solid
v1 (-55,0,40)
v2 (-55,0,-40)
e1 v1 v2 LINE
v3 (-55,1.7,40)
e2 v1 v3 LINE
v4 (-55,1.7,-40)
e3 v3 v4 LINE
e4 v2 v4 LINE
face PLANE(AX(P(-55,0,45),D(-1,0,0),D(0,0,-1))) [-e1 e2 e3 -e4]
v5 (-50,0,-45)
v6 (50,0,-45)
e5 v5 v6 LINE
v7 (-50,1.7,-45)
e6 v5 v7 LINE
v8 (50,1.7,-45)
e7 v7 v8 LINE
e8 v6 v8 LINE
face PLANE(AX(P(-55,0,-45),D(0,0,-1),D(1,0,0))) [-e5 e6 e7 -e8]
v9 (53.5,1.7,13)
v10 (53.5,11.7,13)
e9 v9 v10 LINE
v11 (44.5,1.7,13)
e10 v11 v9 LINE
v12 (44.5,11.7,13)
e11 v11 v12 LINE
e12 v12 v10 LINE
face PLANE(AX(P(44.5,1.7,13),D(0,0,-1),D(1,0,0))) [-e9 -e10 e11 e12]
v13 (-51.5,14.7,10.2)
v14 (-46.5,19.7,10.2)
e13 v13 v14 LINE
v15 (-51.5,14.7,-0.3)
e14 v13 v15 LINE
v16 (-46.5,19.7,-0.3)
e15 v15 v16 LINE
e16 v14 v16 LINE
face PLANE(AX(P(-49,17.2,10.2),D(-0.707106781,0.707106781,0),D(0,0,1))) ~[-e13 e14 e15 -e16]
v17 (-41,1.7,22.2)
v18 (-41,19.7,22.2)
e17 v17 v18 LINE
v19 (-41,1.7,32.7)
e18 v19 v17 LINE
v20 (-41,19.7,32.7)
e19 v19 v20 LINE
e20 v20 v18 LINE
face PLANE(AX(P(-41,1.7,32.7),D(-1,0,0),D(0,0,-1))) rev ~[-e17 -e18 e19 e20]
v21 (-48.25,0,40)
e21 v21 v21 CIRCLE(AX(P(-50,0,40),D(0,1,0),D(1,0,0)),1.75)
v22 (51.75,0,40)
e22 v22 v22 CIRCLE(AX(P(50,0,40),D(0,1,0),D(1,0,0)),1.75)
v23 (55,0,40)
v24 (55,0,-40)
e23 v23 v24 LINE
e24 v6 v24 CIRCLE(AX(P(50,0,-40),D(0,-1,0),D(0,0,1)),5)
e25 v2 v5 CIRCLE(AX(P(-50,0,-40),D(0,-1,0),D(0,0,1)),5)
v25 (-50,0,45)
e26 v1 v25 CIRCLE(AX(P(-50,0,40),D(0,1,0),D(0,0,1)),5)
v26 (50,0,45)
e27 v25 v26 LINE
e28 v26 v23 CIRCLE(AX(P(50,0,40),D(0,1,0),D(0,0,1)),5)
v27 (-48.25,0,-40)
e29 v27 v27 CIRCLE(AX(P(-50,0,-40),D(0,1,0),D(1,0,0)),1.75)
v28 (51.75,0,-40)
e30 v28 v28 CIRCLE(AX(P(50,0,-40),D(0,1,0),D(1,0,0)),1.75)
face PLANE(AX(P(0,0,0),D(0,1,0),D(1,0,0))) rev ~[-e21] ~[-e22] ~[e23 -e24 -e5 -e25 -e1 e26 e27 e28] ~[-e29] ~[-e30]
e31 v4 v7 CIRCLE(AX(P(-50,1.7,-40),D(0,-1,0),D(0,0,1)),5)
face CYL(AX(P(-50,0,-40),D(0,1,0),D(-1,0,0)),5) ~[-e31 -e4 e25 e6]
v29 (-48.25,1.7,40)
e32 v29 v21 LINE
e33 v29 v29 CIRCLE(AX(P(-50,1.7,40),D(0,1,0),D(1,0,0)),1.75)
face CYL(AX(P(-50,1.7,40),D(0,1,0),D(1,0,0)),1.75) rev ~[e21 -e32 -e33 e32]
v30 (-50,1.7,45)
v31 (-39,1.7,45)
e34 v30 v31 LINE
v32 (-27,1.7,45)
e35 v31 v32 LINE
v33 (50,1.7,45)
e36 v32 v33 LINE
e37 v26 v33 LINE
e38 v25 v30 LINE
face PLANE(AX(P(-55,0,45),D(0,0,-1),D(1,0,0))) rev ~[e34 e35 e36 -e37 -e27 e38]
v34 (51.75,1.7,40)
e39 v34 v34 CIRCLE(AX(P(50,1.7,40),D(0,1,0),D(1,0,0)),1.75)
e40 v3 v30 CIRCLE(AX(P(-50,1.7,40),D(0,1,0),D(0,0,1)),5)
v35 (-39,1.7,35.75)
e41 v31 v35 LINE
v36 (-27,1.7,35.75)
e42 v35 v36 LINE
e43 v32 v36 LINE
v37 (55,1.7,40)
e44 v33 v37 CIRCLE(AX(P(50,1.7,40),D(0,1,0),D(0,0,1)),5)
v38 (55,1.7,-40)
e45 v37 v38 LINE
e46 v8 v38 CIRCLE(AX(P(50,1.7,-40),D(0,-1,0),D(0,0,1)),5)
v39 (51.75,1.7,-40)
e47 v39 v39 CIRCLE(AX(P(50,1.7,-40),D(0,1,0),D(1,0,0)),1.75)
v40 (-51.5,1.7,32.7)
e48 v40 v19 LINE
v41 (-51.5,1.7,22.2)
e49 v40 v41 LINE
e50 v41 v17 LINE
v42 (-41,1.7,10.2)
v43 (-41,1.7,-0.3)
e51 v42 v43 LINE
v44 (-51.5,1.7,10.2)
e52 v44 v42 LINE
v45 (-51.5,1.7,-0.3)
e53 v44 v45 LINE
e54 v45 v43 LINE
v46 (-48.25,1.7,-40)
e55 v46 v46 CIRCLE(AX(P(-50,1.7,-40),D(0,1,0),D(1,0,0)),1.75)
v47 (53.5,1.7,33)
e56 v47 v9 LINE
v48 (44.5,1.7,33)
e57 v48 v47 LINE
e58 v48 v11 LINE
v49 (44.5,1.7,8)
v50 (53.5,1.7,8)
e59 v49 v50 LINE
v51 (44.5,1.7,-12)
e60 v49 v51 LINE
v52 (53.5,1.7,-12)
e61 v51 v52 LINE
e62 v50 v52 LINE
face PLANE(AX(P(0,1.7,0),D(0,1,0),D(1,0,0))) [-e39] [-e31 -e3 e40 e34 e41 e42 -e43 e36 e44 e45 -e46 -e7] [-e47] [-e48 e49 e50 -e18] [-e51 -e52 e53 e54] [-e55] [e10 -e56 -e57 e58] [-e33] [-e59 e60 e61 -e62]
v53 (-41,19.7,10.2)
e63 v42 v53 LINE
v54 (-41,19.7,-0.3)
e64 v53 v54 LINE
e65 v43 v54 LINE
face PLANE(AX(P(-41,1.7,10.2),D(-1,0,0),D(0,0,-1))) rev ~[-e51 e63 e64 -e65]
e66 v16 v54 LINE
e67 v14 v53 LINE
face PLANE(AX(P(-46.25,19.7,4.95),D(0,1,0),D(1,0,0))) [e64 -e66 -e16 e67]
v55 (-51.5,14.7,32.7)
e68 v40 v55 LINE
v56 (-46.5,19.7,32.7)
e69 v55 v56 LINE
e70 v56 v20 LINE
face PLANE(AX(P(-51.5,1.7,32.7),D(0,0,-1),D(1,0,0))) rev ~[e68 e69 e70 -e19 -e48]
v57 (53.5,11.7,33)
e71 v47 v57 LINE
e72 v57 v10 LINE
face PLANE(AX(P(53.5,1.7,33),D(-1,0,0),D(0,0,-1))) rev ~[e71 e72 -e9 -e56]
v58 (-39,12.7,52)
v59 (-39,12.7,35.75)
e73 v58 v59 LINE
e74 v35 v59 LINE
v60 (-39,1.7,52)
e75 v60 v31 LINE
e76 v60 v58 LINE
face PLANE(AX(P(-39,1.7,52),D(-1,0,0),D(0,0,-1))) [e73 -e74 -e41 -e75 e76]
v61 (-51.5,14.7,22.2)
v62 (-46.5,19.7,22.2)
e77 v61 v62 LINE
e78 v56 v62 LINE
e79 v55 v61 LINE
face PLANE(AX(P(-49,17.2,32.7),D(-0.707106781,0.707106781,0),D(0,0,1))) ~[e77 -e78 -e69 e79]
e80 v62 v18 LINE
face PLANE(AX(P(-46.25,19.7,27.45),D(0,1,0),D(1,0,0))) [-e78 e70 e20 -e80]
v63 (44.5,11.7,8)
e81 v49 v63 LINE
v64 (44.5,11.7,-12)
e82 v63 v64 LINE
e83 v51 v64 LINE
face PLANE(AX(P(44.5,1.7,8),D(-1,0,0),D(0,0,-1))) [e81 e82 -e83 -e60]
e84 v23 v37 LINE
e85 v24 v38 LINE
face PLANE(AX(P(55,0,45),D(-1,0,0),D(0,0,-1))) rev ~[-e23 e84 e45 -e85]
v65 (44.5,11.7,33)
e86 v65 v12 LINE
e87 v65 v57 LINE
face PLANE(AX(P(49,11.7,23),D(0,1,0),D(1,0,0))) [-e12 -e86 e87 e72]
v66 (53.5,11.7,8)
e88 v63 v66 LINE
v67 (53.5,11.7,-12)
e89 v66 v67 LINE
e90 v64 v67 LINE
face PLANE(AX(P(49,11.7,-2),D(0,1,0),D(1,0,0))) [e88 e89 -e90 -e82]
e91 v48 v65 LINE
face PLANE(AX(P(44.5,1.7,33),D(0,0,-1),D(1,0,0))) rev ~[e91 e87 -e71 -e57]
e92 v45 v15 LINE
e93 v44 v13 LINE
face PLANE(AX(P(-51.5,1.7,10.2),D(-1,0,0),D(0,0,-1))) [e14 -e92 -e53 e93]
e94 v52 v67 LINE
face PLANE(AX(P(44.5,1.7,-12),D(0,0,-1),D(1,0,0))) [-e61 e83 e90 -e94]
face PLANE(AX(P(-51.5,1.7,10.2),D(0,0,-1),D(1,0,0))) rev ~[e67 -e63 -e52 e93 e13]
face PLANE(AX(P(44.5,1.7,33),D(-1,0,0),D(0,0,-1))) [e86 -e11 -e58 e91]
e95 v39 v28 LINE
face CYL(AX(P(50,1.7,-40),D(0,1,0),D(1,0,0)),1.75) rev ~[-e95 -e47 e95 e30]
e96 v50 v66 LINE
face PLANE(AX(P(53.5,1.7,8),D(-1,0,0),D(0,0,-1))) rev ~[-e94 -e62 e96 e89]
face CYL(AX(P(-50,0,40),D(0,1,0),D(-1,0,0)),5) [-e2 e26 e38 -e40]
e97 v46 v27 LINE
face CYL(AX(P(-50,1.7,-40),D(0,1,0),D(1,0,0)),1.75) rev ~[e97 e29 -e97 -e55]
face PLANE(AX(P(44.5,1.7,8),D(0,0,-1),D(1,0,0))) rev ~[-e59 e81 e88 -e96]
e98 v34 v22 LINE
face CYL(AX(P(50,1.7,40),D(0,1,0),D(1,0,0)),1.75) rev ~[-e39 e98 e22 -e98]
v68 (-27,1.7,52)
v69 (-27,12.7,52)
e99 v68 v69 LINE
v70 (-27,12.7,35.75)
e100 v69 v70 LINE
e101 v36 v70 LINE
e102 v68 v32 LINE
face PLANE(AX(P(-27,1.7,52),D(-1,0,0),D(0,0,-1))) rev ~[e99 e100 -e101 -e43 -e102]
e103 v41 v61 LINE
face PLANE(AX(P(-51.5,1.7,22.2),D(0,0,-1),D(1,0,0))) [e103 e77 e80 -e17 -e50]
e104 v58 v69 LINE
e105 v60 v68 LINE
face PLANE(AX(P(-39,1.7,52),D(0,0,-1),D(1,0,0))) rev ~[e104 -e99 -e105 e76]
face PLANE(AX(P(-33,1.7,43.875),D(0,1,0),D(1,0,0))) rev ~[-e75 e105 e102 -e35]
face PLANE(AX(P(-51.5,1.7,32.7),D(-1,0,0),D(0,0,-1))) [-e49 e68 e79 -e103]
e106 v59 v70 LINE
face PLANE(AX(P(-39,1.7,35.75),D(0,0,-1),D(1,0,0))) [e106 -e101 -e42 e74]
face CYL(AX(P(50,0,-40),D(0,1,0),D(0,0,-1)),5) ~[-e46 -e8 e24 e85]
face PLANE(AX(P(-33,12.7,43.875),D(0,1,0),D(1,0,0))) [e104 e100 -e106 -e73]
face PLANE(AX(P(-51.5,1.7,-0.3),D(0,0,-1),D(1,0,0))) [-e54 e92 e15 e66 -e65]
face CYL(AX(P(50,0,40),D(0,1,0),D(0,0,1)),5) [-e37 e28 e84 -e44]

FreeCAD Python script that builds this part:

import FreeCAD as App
import Part
import Sketcher
from FreeCAD import Vector


def edges_at(feature, points):
    """Names of the edges that pass closest to the given points."""
    edges = feature.Shape.Edges
    near = lambda p: min(range(len(edges)), key=lambda i: edges[i].distToShape(Part.Vertex(*p))[0])
    return sorted({f"Edge{near(p) + 1}" for p in points})


def add_polygon(sketch, points):
    """Adds a closed chain of lines whose ends are joined by coincident constraints."""
    first, n = sketch.GeometryCount, len(points)
    for a, b in zip(points, points[1:] + points[:1]):
        sketch.addGeometry(Part.LineSegment(App.Vector(*a, 0), App.Vector(*b, 0)), False)
    for i in range(n):
        sketch.addConstraint(Sketcher.Constraint("Coincident", first + i, 2, first + (i + 1) % n, 1))

doc = App.newDocument("Part")
params = doc.addObject("Spreadsheet::Sheet", "Params")
for row, (alias, value) in enumerate([
    ("sketch1_width", "110 mm"),
    ("sketch1_height", "90 mm"),
    ("pad1_length", "1.7 mm"),
    ("sketch2_diameter", "3.5 mm"),
    ("sketch3_diameter", "3.5 mm"),
    ("sketch4_diameter", "3.5 mm"),
    ("sketch5_diameter", "3.5 mm"),
    ("sketch6_diameter", "3.5 mm"),
    ("pocket5_length", "1 mm"),
    ("fillet_radius", "5 mm"),
    ("sketch7_width", "10.5 mm"),
    ("pad2_length", "18 mm"),
    ("chamfer_size", "5 mm"),
    ("sketch8_width", "12 mm"),
    ("sketch8_height", "16.25 mm"),
    ("pad3_length", "11 mm"),
    ("sketch9_width", "9 mm"),
    ("sketch9_height", "20 mm"),
    ("pad4_length", "10 mm"),
], start=1):
    params.set(f"A{row}", alias)
    params.set(f"B{row}", "=" + value)
    params.setAlias(f"B{row}", alias)

body = doc.addObject("PartDesign::Body", "Body")

sketch1 = body.newObject("Sketcher::SketchObject", "Sketch")
sketch1.AttachmentSupport = (doc.getObject("XZ_Plane"), [""])
sketch1.MapMode = "FlatFace"
add_polygon(sketch1, [(-55, -45), (-55, 45), (55, 45), (55, -45)])
sketch1.addConstraint([
    Sketcher.Constraint("Vertical", 0),
    Sketcher.Constraint("Horizontal", 1),
    Sketcher.Constraint("Vertical", 2),
    Sketcher.Constraint("Horizontal", 3),
    Sketcher.Constraint("Symmetric", 0, 2, 2, 2, -1, 1),
    Sketcher.Constraint("DistanceX", 1, 1, 1, 2, 110.0),
    Sketcher.Constraint("DistanceY", 0, 1, 0, 2, 90.0),
])
sketch1.setExpression("Constraints[9]", "Params.sketch1_width")
sketch1.setExpression("Constraints[10]", "Params.sketch1_height")
pad1 = body.newObject("PartDesign::Pad", "Pad")
pad1.Profile = sketch1
pad1.setExpression("Length", "Params.pad1_length")
pad1.Reversed = True

sketch2 = body.newObject("Sketcher::SketchObject", "Sketch001")
sketch2.AttachmentSupport = (doc.getObject("XZ_Plane"), [""])
sketch2.MapMode = "FlatFace"
sketch2.AttachmentOffset = App.Placement(Vector(0, 0, -1.7), App.Rotation())
sketch2.addGeometry(Part.Circle(Vector(-50, -40, 0), Vector(0, 0, 1), 1.75), False)
sketch2.addConstraint([
    Sketcher.Constraint("Diameter", 0, 3.5),
    Sketcher.Constraint("DistanceX", 0, 3, -1, 1, 50.0),
    Sketcher.Constraint("DistanceY", 0, 3, -1, 1, 40.0),
])
sketch2.setExpression("Constraints[0]", "Params.sketch2_diameter")
pocket1 = body.newObject("PartDesign::Pocket", "Pocket")
pocket1.Profile = sketch2
pocket1.Type = "UpToFirst"
pocket1.Reversed = True

sketch3 = body.newObject("Sketcher::SketchObject", "Sketch002")
sketch3.AttachmentSupport = (doc.getObject("XZ_Plane"), [""])
sketch3.MapMode = "FlatFace"
sketch3.AttachmentOffset = App.Placement(Vector(0, 0, -1.7), App.Rotation())
sketch3.addGeometry(Part.Circle(Vector(-50, 40, 0), Vector(0, 0, 1), 1.75), False)
sketch3.addConstraint([
    Sketcher.Constraint("Diameter", 0, 3.5),
    Sketcher.Constraint("DistanceX", 0, 3, -1, 1, 50.0),
    Sketcher.Constraint("DistanceY", -1, 1, 0, 3, 40.0),
])
sketch3.setExpression("Constraints[0]", "Params.sketch3_diameter")
pocket2 = body.newObject("PartDesign::Pocket", "Pocket001")
pocket2.Profile = sketch3
pocket2.Type = "UpToFirst"
pocket2.Reversed = True

sketch4 = body.newObject("Sketcher::SketchObject", "Sketch003")
sketch4.AttachmentSupport = (doc.getObject("XZ_Plane"), [""])
sketch4.MapMode = "FlatFace"
sketch4.AttachmentOffset = App.Placement(Vector(0, 0, -1.7), App.Rotation())
sketch4.addGeometry(Part.Circle(Vector(50, 40, 0), Vector(0, 0, 1), 1.75), False)
sketch4.addConstraint([
    Sketcher.Constraint("Diameter", 0, 3.5),
    Sketcher.Constraint("DistanceX", -1, 1, 0, 3, 50.0),
    Sketcher.Constraint("DistanceY", -1, 1, 0, 3, 40.0),
])
sketch4.setExpression("Constraints[0]", "Params.sketch4_diameter")
pocket3 = body.newObject("PartDesign::Pocket", "Pocket002")
pocket3.Profile = sketch4
pocket3.Type = "UpToFirst"
pocket3.Reversed = True

sketch5 = body.newObject("Sketcher::SketchObject", "Sketch004")
sketch5.AttachmentSupport = (doc.getObject("XZ_Plane"), [""])
sketch5.MapMode = "FlatFace"
sketch5.AttachmentOffset = App.Placement(Vector(0, 0, -1.7), App.Rotation())
sketch5.addGeometry(Part.Circle(Vector(50, -40, 0), Vector(0, 0, 1), 1.75), False)
sketch5.addConstraint([
    Sketcher.Constraint("Diameter", 0, 3.5),
    Sketcher.Constraint("DistanceX", -1, 1, 0, 3, 50.0),
    Sketcher.Constraint("DistanceY", 0, 3, -1, 1, 40.0),
])
sketch5.setExpression("Constraints[0]", "Params.sketch5_diameter")
pocket4 = body.newObject("PartDesign::Pocket", "Pocket003")
pocket4.Profile = sketch5
pocket4.Type = "UpToFirst"
pocket4.Reversed = True

sketch6 = body.newObject("Sketcher::SketchObject", "Sketch005")
sketch6.AttachmentSupport = (doc.getObject("XZ_Plane"), [""])
sketch6.MapMode = "FlatFace"
sketch6.AttachmentOffset = App.Placement(Vector(0, 0, -1.7), App.Rotation())
sketch6.addGeometry([
    Part.Circle(Vector(-50, -40, 0), Vector(0, 0, 1), 1.75),
    Part.Circle(Vector(-50, 40, 0), Vector(0, 0, 1), 1.75),
    Part.Circle(Vector(50, 40, 0), Vector(0, 0, 1), 1.75),
    Part.Circle(Vector(50, -40, 0), Vector(0, 0, 1), 1.75),
], False)
sketch6.addConstraint([
    Sketcher.Constraint("Equal", 0, 1),
    Sketcher.Constraint("Equal", 1, 2),
    Sketcher.Constraint("Equal", 2, 3),
    Sketcher.Constraint("Symmetric", 0, 3, 2, 3, -1, 1),
    Sketcher.Constraint("Symmetric", 1, 3, 3, 3, -1, 1),
    Sketcher.Constraint("Symmetric", 1, 3, 2, 3, -2),
    Sketcher.Constraint("Diameter", 0, 3.5),
    Sketcher.Constraint("DistanceX", 0, 3, -1, 1, 50.0),
    Sketcher.Constraint("DistanceY", 0, 3, -1, 1, 40.0),
])
sketch6.setExpression("Constraints[6]", "Params.sketch6_diameter")
pocket5 = body.newObject("PartDesign::Pocket", "Pocket004")
pocket5.Profile = sketch6
pocket5.setExpression("Length", "Params.pocket5_length")
doc.recompute()

fillet = body.newObject("PartDesign::Fillet", "Fillet")
fillet.Base = (pocket5, edges_at(pocket5, [
    (55, 0.85, 45),
    (-55, 0.85, 45),
    (-55, 0.85, -45),
    (55, 0.85, -45),
]))
fillet.setExpression("Radius", "Params.fillet_radius")

sketch7 = body.newObject("Sketcher::SketchObject", "Sketch006")
sketch7.AttachmentSupport = (doc.getObject("XZ_Plane"), [""])
sketch7.MapMode = "FlatFace"
sketch7.AttachmentOffset = App.Placement(Vector(0, 0, -1.7), App.Rotation())
add_polygon(sketch7, [(-51.5, 22.2), (-51.5, 32.7), (-41, 32.7), (-41, 22.2)])
add_polygon(sketch7, [(-51.5, -0.3), (-51.5, 10.2), (-41, 10.2), (-41, -0.3)])
sketch7.addConstraint([
    Sketcher.Constraint("Vertical", 0),
    Sketcher.Constraint("Horizontal", 1),
    Sketcher.Constraint("Vertical", 2),
    Sketcher.Constraint("Horizontal", 3),
    Sketcher.Constraint("Vertical", 4),
    Sketcher.Constraint("Horizontal", 5),
    Sketcher.Constraint("Vertical", 6),
    Sketcher.Constraint("Horizontal", 7),
    Sketcher.Constraint("Vertical", 3, 2, 4, 2),
    Sketcher.Constraint("Vertical", 2, 2, 5, 2),
    Sketcher.Constraint("Equal", 7, 0),
    Sketcher.Constraint("Equal", 2, 4),
    Sketcher.Constraint("DistanceX", 1, 1, 1, 2, 10.5),
    Sketcher.Constraint("DistanceX", 1, 2, -1, 1, 41.0),
    Sketcher.Constraint("DistanceY", 4, 2, 3, 2, 12.0),
    Sketcher.Constraint("DistanceY", -1, 1, 0, 2, 32.7),
])
sketch7.setExpression("Constraints[20]", "Params.sketch7_width")
pad2 = body.newObject("PartDesign::Pad", "Pad001")
pad2.Profile = sketch7
pad2.setExpression("Length", "Params.pad2_length")
pad2.Reversed = True
doc.recompute()

chamfer = body.newObject("PartDesign::Chamfer", "Chamfer")
chamfer.Base = (pad2, edges_at(pad2, [(-51.5, 19.7, 27.45), (-51.5, 19.7, 4.95)]))
chamfer.setExpression("Size", "Params.chamfer_size")

sketch8 = body.newObject("Sketcher::SketchObject", "Sketch007")
sketch8.AttachmentSupport = (doc.getObject("XZ_Plane"), [""])
sketch8.MapMode = "FlatFace"
sketch8.AttachmentOffset = App.Placement(Vector(0, 0, -1.7), App.Rotation())
add_polygon(sketch8, [(-39, 35.75), (-39, 52), (-27, 52), (-27, 35.75)])
sketch8.addConstraint([
    Sketcher.Constraint("Vertical", 0),
    Sketcher.Constraint("Horizontal", 1),
    Sketcher.Constraint("Vertical", 2),
    Sketcher.Constraint("Horizontal", 3),
    Sketcher.Constraint("DistanceX", 1, 1, 1, 2, 12.0),
    Sketcher.Constraint("DistanceX", 0, 2, -1, 1, 39.0),
    Sketcher.Constraint("DistanceY", -1, 1, 0, 2, 52.0),
    Sketcher.Constraint("DistanceY", 0, 1, 0, 2, 16.25),
])
sketch8.setExpression("Constraints[8]", "Params.sketch8_width")
sketch8.setExpression("Constraints[11]", "Params.sketch8_height")
pad3 = body.newObject("PartDesign::Pad", "Pad002")
pad3.Profile = sketch8
pad3.setExpression("Length", "Params.pad3_length")
pad3.Reversed = True

sketch9 = body.newObject("Sketcher::SketchObject", "Sketch008")
sketch9.AttachmentSupport = (doc.getObject("XZ_Plane"), [""])
sketch9.MapMode = "FlatFace"
sketch9.AttachmentOffset = App.Placement(Vector(0, 0, -1.7), App.Rotation())
add_polygon(sketch9, [(44.5, 13), (44.5, 33), (53.5, 33), (53.5, 13)])
add_polygon(sketch9, [(44.5, -12), (44.5, 8), (53.5, 8), (53.5, -12)])
sketch9.addConstraint([
    Sketcher.Constraint("Vertical", 0),
    Sketcher.Constraint("Horizontal", 1),
    Sketcher.Constraint("Vertical", 2),
    Sketcher.Constraint("Horizontal", 3),
    Sketcher.Constraint("Vertical", 4),
    Sketcher.Constraint("Horizontal", 5),
    Sketcher.Constraint("Vertical", 6),
    Sketcher.Constraint("Horizontal", 7),
    Sketcher.Constraint("Vertical", 3, 2, 4, 2),
    Sketcher.Constraint("Vertical", 2, 2, 5, 2),
    Sketcher.Constraint("Equal", 2, 4),
    Sketcher.Constraint("DistanceX", 1, 1, 1, 2, 9.0),
    Sketcher.Constraint("DistanceY", 0, 1, 0, 2, 20.0),
    Sketcher.Constraint("DistanceY", -1, 1, 0, 2, 33.0),
    Sketcher.Constraint("DistanceY", -1, 1, 4, 2, 8.0),
    Sketcher.Constraint("DistanceX", -1, 1, 0, 2, 44.5),
])
sketch9.setExpression("Constraints[19]", "Params.sketch9_width")
sketch9.setExpression("Constraints[20]", "Params.sketch9_height")
pad4 = body.newObject("PartDesign::Pad", "Pad003")
pad4.Profile = sketch9
pad4.setExpression("Length", "Params.pad4_length")
pad4.Reversed = True

doc.recompute()
